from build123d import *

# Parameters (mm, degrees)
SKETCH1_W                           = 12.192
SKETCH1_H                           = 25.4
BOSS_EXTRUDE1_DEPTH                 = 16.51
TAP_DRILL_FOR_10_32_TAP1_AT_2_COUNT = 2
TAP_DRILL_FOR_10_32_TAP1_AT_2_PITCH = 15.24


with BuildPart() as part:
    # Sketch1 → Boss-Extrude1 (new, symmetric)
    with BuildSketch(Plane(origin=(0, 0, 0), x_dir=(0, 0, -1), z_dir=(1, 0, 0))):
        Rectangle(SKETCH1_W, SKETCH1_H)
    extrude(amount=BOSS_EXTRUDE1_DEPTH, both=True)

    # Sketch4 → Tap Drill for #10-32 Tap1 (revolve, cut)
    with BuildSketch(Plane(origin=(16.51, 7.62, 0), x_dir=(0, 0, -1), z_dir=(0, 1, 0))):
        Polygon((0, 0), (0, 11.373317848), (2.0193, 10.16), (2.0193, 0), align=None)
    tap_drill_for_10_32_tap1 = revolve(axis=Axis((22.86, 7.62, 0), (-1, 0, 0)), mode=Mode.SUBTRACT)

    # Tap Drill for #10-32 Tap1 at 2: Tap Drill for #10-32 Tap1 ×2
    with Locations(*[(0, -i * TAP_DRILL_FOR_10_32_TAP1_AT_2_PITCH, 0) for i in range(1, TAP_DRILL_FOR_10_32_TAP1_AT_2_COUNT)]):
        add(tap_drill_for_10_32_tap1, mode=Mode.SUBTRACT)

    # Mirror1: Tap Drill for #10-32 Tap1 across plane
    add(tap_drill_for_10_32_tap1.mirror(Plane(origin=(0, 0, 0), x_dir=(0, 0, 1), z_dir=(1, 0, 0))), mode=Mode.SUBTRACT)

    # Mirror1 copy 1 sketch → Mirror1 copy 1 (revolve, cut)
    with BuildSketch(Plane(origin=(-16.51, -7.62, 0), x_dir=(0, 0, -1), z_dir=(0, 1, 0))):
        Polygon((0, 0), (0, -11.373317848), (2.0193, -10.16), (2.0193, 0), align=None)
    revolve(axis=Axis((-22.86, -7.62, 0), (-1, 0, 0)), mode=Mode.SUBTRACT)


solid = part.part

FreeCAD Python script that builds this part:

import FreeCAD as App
import Part
import Sketcher
Q = App.Units.Quantity

doc = App.newDocument("Part")
params = doc.addObject("Spreadsheet::Sheet", "Params")
for row, (alias, value) in enumerate([
    ("sketch1_width", "1 in"),
    ("sketch1_height", "0.48 in"),
    ("pad1_length", "1.3 in"),
    ("sketch2_width", "0.4 in"),
    ("groove_angle", "360 deg"),
    ("linearpattern_pitch", "0.6 in"),
    ("sketch3_width", "0.4 in"),
    ("groove2_angle", "360 deg"),
], start=1):
    params.set(f"A{row}", alias)
    params.set(f"B{row}", "=" + value)
    params.setAlias(f"B{row}", alias)

body = doc.addObject("PartDesign::Body", "Body")

# Sketch on YZ plane
sketch1 = doc.addObject("Sketcher::SketchObject", "Sketch")
body.addObject(sketch1)
sketch1.AttachmentSupport = (doc.YZ_Plane, [""])
sketch1.MapMode = "FlatFace"
sketch1.addGeometry(Part.LineSegment(App.Vector(13, 6, 0), App.Vector(-13, 6, 0)), False)
sketch1.addGeometry(Part.LineSegment(App.Vector(-13, 6, 0), App.Vector(-13, -6, 0)), False)
sketch1.addGeometry(Part.LineSegment(App.Vector(-13, -6, 0), App.Vector(13, -6, 0)), False)
sketch1.addGeometry(Part.LineSegment(App.Vector(13, -6, 0), App.Vector(13, 6, 0)), False)
sketch1.addConstraint(Sketcher.Constraint("Coincident", 0, 2, 1, 1))
sketch1.addConstraint(Sketcher.Constraint("Coincident", 1, 2, 2, 1))
sketch1.addConstraint(Sketcher.Constraint("Coincident", 2, 2, 3, 1))
sketch1.addConstraint(Sketcher.Constraint("Coincident", 3, 2, 0, 1))
sketch1.addConstraint(Sketcher.Constraint("Horizontal", 0))
sketch1.addConstraint(Sketcher.Constraint("Vertical", 1))
sketch1.addConstraint(Sketcher.Constraint("Horizontal", 2))
sketch1.addConstraint(Sketcher.Constraint("Vertical", 3))
sketch1.addConstraint(Sketcher.Constraint("Symmetric", 0, 2, 2, 2, -1, 1))
sketch1.addConstraint(Sketcher.Constraint("DistanceX", 0, 2, 0, 1, Q("1 in")))
sketch1.addConstraint(Sketcher.Constraint("DistanceY", 1, 2, 1, 1, Q("0.48 in")))
sketch1.setExpression("Constraints[9]", "Params.sketch1_width")
sketch1.setExpression("Constraints[10]", "Params.sketch1_height")
pad1 = doc.addObject("PartDesign::Pad", "Pad")
body.addObject(pad1)
pad1.Profile = sketch1
pad1.setExpression("Length", "Params.pad1_length")
pad1.Midplane = True

# Sketch on XZ plane
sketch2 = doc.addObject("Sketcher::SketchObject", "Sketch001")
body.addObject(sketch2)
sketch2.AttachmentSupport = (doc.XZ_Plane, [""])
sketch2.MapMode = "FlatFace"
sketch2.AttachmentOffset = App.Placement(App.Vector(0, 0, -0.3 * 25.4), App.Rotation())
sketch2.addGeometry(Part.LineSegment(App.Vector(5.1, 0, 0), App.Vector(16.5, 0, 0)), False)
sketch2.addGeometry(Part.LineSegment(App.Vector(16.5, 0, 0), App.Vector(16.5, -2, 0)), False)
sketch2.addGeometry(Part.LineSegment(App.Vector(16.5, -2, 0), App.Vector(6.3, -2, 0)), False)
sketch2.addGeometry(Part.LineSegment(App.Vector(6.3, -2, 0), App.Vector(5.1, 0, 0)), False)
sketch2.addConstraint(Sketcher.Constraint("Coincident", 0, 2, 1, 1))
sketch2.addConstraint(Sketcher.Constraint("Coincident", 1, 2, 2, 1))
sketch2.addConstraint(Sketcher.Constraint("Coincident", 2, 2, 3, 1))
sketch2.addConstraint(Sketcher.Constraint("Coincident", 3, 2, 0, 1))
sketch2.addConstraint(Sketcher.Constraint("Horizontal", 0))
sketch2.addConstraint(Sketcher.Constraint("Vertical", 1))
sketch2.addConstraint(Sketcher.Constraint("Horizontal", 2))
sketch2.addConstraint(Sketcher.Constraint("PointOnObject", 0, 2, -1))
sketch2.addConstraint(Sketcher.Constraint("DistanceX", 2, 2, 2, 1, Q("0.4 in")))
sketch2.addConstraint(Sketcher.Constraint("Angle", 3, Q("121 deg")))
sketch2.addConstraint(Sketcher.Constraint("DistanceX", -1, 1, 0, 2, Q("0.65 in")))
sketch2.addConstraint(Sketcher.Constraint("DistanceY", 1, 2, 1, 1, Q("0.0795 in")))
sketch2.setExpression("Constraints[8]", "Params.sketch2_width")
groove = doc.addObject("PartDesign::Groove", "Groove")
body.addObject(groove)
groove.Profile = sketch2
groove.ReferenceAxis = (sketch2, ["H_Axis"])
groove.setExpression("Angle", "Params.groove_angle")
doc.recompute()

linearpattern = doc.addObject("PartDesign::LinearPattern", "LinearPattern")
body.addObject(linearpattern)
linearpattern.Originals = [groove]
linearpattern.Direction = (doc.Y_Axis, [""])
linearpattern.Mode = "offset"
linearpattern.setExpression("Offset", "Params.linearpattern_pitch")
linearpattern.Occurrences = 2
linearpattern.Reversed = True
body.Tip = linearpattern
doc.recompute()

mirrored = doc.addObject("PartDesign::Mirrored", "Mirrored")
body.addObject(mirrored)
mirrored.Originals = [groove]
mirrored.MirrorPlane = (doc.YZ_Plane, [""])
body.Tip = mirrored

# Sketch on XZ plane
sketch3 = doc.addObject("Sketcher::SketchObject", "Sketch002")
body.addObject(sketch3)
sketch3.AttachmentSupport = (doc.XZ_Plane, [""])
sketch3.MapMode = "FlatFace"
sketch3.AttachmentOffset = App.Placement(App.Vector(0, 0, 0.3 * 25.4), App.Rotation())
sketch3.addGeometry(Part.LineSegment(App.Vector(-16.5, 0, 0), App.Vector(-5.1, 0, 0)), False)
sketch3.addGeometry(Part.LineSegment(App.Vector(-5.1, 0, 0), App.Vector(-6.3, -2, 0)), False)
sketch3.addGeometry(Part.LineSegment(App.Vector(-6.3, -2, 0), App.Vector(-16.5, -2, 0)), False)
sketch3.addGeometry(Part.LineSegment(App.Vector(-16.5, -2, 0), App.Vector(-16.5, 0, 0)), False)
sketch3.addConstraint(Sketcher.Constraint("Coincident", 0, 2, 1, 1))
sketch3.addConstraint(Sketcher.Constraint("Coincident", 1, 2, 2, 1))
sketch3.addConstraint(Sketcher.Constraint("Coincident", 2, 2, 3, 1))
sketch3.addConstraint(Sketcher.Constraint("Coincident", 3, 2, 0, 1))
sketch3.addConstraint(Sketcher.Constraint("Horizontal", 0))
sketch3.addConstraint(Sketcher.Constraint("Horizontal", 2))
sketch3.addConstraint(Sketcher.Constraint("Vertical", 3))
sketch3.addConstraint(Sketcher.Constraint("PointOnObject", 0, 2, -1))
sketch3.addConstraint(Sketcher.Constraint("DistanceX", 2, 2, 2, 1, Q("0.4 in")))
sketch3.addConstraint(Sketcher.Constraint("Angle", 1, Q("-121 deg")))
sketch3.addConstraint(Sketcher.Constraint("DistanceX", 1, 2, -1, 1, Q("0.25 in")))
sketch3.addConstraint(Sketcher.Constraint("DistanceY", 3, 1, 3, 2, Q("0.0795 in")))
sketch3.setExpression("Constraints[8]", "Params.sketch3_width")
groove2 = doc.addObject("PartDesign::Groove", "Groove001")
body.addObject(groove2)
groove2.Profile = sketch3
groove2.ReferenceAxis = (sketch3, ["H_Axis"])
groove2.setExpression("Angle", "Params.groove2_angle")

doc.recompute()
